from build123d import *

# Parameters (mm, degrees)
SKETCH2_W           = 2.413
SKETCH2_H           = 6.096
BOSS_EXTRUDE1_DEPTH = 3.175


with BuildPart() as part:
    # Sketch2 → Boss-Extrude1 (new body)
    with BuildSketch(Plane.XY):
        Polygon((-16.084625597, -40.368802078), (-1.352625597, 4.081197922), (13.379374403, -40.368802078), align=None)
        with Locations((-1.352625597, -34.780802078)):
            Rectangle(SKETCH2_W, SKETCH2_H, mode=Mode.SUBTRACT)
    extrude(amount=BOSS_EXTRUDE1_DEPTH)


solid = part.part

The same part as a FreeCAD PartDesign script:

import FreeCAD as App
import Part
import Sketcher
Q = App.Units.Quantity


def add_polygon(sketch, points):
    """Adds a closed chain of lines whose ends are joined by coincident constraints."""
    first, n = sketch.GeometryCount, len(points)
    for a, b in zip(points, points[1:] + points[:1]):
        sketch.addGeometry(Part.LineSegment(App.Vector(*a, 0), App.Vector(*b, 0)), False)
    for i in range(n):
        sketch.addConstraint(Sketcher.Constraint("Coincident", first + i, 2, first + (i + 1) % n, 1))

doc = App.newDocument("Part")
body = doc.addObject("PartDesign::Body", "Body")

# Sketch on XY plane
sketch1 = doc.addObject("Sketcher::SketchObject", "Sketch")
body.addObject(sketch1)
sketch1.AttachmentSupport = (doc.XY_Plane, [""])
sketch1.MapMode = "FlatFace"
add_polygon(sketch1, [(-1.352626, 4.081198), (-16.084626, -40.368802), (13.379374, -40.368802)])  # lines 0-2
add_polygon(sketch1, [(-2.559126, -37.828802), (-2.559126, -31.732802), (-0.146126, -31.732802), (-0.146126, -37.828802)])  # lines 3-6
sketch1.addConstraint([
    Sketcher.Constraint("Horizontal", 1),
    Sketcher.Constraint("Vertical", 3),
    Sketcher.Constraint("Horizontal", 4),
    Sketcher.Constraint("Vertical", 5),
    Sketcher.Constraint("Horizontal", 6),
    Sketcher.Constraint("Equal", 0, 2),
    Sketcher.Constraint("DistanceX", 1, 1, 1, 2, Q("1.16 in")),
    Sketcher.Constraint("DistanceY", 3, 1, 3, 2, Q("0.24 in")),
    Sketcher.Constraint("DistanceY", 1, 2, 5, 2, Q("0.1 in")),
    Sketcher.Constraint("DistanceX", 4, 1, 4, 2, Q("0.095 in")),
    Sketcher.Constraint("DistanceY", 0, 2, 2, 2, Q("1.75 in")),
    Sketcher.Constraint("DistanceX", 0, 2, 3, 2, Q("0.5325 in")),
    Sketcher.Constraint("DistanceX", 0, 2, -1, 1, 16.084626),
    Sketcher.Constraint("DistanceY", 0, 2, -1, 1, 40.368802),
])
pad1 = doc.addObject("PartDesign::Pad", "Pad")
body.addObject(pad1)
pad1.Profile = sketch1
pad1.Length = Q("0.125 in")

doc.recompute()
